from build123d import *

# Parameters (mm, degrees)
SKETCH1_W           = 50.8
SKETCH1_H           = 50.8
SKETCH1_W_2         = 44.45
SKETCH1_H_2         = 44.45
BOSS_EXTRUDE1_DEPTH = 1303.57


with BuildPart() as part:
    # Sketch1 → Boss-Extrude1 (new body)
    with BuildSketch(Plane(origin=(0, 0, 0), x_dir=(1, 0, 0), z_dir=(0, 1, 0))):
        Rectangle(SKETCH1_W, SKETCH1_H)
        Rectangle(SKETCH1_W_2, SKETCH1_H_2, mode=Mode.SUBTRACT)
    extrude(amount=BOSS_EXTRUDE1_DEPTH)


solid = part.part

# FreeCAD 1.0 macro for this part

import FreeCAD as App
import Part
import Sketcher

V = App.Vector
Q = App.Units.Quantity

doc = App.newDocument("Part")
body = doc.addObject("PartDesign::Body", "Body")

# Sketch on XZ plane
sketch1 = body.newObject("Sketcher::SketchObject", "Sketch")
sketch1.AttachmentSupport = (doc.getObject("XZ_Plane"), [""])
sketch1.MapMode = "FlatFace"
sketch1.addGeometry(Part.LineSegment(V(-25, -25, 0), V(-25, 25, 0)), False)
sketch1.addGeometry(Part.LineSegment(V(-25, 25, 0), V(25, 25, 0)), False)
sketch1.addGeometry(Part.LineSegment(V(25, 25, 0), V(25, -25, 0)), False)
sketch1.addGeometry(Part.LineSegment(V(25, -25, 0), V(-25, -25, 0)), False)
sketch1.addGeometry(Part.LineSegment(V(22, 22, 0), V(-22, 22, 0)), False)
sketch1.addGeometry(Part.LineSegment(V(-22, 22, 0), V(-22, -22, 0)), False)
sketch1.addGeometry(Part.LineSegment(V(-22, -22, 0), V(22, -22, 0)), False)
sketch1.addGeometry(Part.LineSegment(V(22, -22, 0), V(22, 22, 0)), False)
sketch1.addConstraint(Sketcher.Constraint("Coincident", 0, 2, 1, 1))
sketch1.addConstraint(Sketcher.Constraint("Coincident", 1, 2, 2, 1))
sketch1.addConstraint(Sketcher.Constraint("Coincident", 2, 2, 3, 1))
sketch1.addConstraint(Sketcher.Constraint("Coincident", 3, 2, 0, 1))
sketch1.addConstraint(Sketcher.Constraint("Coincident", 4, 2, 5, 1))
sketch1.addConstraint(Sketcher.Constraint("Coincident", 5, 2, 6, 1))
sketch1.addConstraint(Sketcher.Constraint("Coincident", 6, 2, 7, 1))
sketch1.addConstraint(Sketcher.Constraint("Coincident", 7, 2, 4, 1))
sketch1.addConstraint(Sketcher.Constraint("Vertical", 0))
sketch1.addConstraint(Sketcher.Constraint("Horizontal", 1))
sketch1.addConstraint(Sketcher.Constraint("Vertical", 2))
sketch1.addConstraint(Sketcher.Constraint("Horizontal", 3))
sketch1.addConstraint(Sketcher.Constraint("Horizontal", 4))
sketch1.addConstraint(Sketcher.Constraint("Vertical", 5))
sketch1.addConstraint(Sketcher.Constraint("Horizontal", 6))
sketch1.addConstraint(Sketcher.Constraint("Vertical", 7))
sketch1.addConstraint(Sketcher.Constraint("Symmetric", 0, 2, 2, 2, -1, 1))
sketch1.addConstraint(Sketcher.Constraint("Symmetric", 4, 2, 6, 2, -1, 1))
sketch1.addConstraint(Sketcher.Constraint("Equal", 3, 0))
sketch1.addConstraint(Sketcher.Constraint("Equal", 6, 5))
sketch1.addConstraint(Sketcher.Constraint("DistanceX", 1, 1, 1, 2, Q("2 in")))
sketch1.addConstraint(Sketcher.Constraint("DistanceX", 4, 2, 4, 1, Q("1.75 in")))
pad1 = body.newObject("PartDesign::Pad", "Pad")
pad1.Profile = sketch1
pad1.Length = 1303.57
pad1.Reversed = True

doc.recompute()
